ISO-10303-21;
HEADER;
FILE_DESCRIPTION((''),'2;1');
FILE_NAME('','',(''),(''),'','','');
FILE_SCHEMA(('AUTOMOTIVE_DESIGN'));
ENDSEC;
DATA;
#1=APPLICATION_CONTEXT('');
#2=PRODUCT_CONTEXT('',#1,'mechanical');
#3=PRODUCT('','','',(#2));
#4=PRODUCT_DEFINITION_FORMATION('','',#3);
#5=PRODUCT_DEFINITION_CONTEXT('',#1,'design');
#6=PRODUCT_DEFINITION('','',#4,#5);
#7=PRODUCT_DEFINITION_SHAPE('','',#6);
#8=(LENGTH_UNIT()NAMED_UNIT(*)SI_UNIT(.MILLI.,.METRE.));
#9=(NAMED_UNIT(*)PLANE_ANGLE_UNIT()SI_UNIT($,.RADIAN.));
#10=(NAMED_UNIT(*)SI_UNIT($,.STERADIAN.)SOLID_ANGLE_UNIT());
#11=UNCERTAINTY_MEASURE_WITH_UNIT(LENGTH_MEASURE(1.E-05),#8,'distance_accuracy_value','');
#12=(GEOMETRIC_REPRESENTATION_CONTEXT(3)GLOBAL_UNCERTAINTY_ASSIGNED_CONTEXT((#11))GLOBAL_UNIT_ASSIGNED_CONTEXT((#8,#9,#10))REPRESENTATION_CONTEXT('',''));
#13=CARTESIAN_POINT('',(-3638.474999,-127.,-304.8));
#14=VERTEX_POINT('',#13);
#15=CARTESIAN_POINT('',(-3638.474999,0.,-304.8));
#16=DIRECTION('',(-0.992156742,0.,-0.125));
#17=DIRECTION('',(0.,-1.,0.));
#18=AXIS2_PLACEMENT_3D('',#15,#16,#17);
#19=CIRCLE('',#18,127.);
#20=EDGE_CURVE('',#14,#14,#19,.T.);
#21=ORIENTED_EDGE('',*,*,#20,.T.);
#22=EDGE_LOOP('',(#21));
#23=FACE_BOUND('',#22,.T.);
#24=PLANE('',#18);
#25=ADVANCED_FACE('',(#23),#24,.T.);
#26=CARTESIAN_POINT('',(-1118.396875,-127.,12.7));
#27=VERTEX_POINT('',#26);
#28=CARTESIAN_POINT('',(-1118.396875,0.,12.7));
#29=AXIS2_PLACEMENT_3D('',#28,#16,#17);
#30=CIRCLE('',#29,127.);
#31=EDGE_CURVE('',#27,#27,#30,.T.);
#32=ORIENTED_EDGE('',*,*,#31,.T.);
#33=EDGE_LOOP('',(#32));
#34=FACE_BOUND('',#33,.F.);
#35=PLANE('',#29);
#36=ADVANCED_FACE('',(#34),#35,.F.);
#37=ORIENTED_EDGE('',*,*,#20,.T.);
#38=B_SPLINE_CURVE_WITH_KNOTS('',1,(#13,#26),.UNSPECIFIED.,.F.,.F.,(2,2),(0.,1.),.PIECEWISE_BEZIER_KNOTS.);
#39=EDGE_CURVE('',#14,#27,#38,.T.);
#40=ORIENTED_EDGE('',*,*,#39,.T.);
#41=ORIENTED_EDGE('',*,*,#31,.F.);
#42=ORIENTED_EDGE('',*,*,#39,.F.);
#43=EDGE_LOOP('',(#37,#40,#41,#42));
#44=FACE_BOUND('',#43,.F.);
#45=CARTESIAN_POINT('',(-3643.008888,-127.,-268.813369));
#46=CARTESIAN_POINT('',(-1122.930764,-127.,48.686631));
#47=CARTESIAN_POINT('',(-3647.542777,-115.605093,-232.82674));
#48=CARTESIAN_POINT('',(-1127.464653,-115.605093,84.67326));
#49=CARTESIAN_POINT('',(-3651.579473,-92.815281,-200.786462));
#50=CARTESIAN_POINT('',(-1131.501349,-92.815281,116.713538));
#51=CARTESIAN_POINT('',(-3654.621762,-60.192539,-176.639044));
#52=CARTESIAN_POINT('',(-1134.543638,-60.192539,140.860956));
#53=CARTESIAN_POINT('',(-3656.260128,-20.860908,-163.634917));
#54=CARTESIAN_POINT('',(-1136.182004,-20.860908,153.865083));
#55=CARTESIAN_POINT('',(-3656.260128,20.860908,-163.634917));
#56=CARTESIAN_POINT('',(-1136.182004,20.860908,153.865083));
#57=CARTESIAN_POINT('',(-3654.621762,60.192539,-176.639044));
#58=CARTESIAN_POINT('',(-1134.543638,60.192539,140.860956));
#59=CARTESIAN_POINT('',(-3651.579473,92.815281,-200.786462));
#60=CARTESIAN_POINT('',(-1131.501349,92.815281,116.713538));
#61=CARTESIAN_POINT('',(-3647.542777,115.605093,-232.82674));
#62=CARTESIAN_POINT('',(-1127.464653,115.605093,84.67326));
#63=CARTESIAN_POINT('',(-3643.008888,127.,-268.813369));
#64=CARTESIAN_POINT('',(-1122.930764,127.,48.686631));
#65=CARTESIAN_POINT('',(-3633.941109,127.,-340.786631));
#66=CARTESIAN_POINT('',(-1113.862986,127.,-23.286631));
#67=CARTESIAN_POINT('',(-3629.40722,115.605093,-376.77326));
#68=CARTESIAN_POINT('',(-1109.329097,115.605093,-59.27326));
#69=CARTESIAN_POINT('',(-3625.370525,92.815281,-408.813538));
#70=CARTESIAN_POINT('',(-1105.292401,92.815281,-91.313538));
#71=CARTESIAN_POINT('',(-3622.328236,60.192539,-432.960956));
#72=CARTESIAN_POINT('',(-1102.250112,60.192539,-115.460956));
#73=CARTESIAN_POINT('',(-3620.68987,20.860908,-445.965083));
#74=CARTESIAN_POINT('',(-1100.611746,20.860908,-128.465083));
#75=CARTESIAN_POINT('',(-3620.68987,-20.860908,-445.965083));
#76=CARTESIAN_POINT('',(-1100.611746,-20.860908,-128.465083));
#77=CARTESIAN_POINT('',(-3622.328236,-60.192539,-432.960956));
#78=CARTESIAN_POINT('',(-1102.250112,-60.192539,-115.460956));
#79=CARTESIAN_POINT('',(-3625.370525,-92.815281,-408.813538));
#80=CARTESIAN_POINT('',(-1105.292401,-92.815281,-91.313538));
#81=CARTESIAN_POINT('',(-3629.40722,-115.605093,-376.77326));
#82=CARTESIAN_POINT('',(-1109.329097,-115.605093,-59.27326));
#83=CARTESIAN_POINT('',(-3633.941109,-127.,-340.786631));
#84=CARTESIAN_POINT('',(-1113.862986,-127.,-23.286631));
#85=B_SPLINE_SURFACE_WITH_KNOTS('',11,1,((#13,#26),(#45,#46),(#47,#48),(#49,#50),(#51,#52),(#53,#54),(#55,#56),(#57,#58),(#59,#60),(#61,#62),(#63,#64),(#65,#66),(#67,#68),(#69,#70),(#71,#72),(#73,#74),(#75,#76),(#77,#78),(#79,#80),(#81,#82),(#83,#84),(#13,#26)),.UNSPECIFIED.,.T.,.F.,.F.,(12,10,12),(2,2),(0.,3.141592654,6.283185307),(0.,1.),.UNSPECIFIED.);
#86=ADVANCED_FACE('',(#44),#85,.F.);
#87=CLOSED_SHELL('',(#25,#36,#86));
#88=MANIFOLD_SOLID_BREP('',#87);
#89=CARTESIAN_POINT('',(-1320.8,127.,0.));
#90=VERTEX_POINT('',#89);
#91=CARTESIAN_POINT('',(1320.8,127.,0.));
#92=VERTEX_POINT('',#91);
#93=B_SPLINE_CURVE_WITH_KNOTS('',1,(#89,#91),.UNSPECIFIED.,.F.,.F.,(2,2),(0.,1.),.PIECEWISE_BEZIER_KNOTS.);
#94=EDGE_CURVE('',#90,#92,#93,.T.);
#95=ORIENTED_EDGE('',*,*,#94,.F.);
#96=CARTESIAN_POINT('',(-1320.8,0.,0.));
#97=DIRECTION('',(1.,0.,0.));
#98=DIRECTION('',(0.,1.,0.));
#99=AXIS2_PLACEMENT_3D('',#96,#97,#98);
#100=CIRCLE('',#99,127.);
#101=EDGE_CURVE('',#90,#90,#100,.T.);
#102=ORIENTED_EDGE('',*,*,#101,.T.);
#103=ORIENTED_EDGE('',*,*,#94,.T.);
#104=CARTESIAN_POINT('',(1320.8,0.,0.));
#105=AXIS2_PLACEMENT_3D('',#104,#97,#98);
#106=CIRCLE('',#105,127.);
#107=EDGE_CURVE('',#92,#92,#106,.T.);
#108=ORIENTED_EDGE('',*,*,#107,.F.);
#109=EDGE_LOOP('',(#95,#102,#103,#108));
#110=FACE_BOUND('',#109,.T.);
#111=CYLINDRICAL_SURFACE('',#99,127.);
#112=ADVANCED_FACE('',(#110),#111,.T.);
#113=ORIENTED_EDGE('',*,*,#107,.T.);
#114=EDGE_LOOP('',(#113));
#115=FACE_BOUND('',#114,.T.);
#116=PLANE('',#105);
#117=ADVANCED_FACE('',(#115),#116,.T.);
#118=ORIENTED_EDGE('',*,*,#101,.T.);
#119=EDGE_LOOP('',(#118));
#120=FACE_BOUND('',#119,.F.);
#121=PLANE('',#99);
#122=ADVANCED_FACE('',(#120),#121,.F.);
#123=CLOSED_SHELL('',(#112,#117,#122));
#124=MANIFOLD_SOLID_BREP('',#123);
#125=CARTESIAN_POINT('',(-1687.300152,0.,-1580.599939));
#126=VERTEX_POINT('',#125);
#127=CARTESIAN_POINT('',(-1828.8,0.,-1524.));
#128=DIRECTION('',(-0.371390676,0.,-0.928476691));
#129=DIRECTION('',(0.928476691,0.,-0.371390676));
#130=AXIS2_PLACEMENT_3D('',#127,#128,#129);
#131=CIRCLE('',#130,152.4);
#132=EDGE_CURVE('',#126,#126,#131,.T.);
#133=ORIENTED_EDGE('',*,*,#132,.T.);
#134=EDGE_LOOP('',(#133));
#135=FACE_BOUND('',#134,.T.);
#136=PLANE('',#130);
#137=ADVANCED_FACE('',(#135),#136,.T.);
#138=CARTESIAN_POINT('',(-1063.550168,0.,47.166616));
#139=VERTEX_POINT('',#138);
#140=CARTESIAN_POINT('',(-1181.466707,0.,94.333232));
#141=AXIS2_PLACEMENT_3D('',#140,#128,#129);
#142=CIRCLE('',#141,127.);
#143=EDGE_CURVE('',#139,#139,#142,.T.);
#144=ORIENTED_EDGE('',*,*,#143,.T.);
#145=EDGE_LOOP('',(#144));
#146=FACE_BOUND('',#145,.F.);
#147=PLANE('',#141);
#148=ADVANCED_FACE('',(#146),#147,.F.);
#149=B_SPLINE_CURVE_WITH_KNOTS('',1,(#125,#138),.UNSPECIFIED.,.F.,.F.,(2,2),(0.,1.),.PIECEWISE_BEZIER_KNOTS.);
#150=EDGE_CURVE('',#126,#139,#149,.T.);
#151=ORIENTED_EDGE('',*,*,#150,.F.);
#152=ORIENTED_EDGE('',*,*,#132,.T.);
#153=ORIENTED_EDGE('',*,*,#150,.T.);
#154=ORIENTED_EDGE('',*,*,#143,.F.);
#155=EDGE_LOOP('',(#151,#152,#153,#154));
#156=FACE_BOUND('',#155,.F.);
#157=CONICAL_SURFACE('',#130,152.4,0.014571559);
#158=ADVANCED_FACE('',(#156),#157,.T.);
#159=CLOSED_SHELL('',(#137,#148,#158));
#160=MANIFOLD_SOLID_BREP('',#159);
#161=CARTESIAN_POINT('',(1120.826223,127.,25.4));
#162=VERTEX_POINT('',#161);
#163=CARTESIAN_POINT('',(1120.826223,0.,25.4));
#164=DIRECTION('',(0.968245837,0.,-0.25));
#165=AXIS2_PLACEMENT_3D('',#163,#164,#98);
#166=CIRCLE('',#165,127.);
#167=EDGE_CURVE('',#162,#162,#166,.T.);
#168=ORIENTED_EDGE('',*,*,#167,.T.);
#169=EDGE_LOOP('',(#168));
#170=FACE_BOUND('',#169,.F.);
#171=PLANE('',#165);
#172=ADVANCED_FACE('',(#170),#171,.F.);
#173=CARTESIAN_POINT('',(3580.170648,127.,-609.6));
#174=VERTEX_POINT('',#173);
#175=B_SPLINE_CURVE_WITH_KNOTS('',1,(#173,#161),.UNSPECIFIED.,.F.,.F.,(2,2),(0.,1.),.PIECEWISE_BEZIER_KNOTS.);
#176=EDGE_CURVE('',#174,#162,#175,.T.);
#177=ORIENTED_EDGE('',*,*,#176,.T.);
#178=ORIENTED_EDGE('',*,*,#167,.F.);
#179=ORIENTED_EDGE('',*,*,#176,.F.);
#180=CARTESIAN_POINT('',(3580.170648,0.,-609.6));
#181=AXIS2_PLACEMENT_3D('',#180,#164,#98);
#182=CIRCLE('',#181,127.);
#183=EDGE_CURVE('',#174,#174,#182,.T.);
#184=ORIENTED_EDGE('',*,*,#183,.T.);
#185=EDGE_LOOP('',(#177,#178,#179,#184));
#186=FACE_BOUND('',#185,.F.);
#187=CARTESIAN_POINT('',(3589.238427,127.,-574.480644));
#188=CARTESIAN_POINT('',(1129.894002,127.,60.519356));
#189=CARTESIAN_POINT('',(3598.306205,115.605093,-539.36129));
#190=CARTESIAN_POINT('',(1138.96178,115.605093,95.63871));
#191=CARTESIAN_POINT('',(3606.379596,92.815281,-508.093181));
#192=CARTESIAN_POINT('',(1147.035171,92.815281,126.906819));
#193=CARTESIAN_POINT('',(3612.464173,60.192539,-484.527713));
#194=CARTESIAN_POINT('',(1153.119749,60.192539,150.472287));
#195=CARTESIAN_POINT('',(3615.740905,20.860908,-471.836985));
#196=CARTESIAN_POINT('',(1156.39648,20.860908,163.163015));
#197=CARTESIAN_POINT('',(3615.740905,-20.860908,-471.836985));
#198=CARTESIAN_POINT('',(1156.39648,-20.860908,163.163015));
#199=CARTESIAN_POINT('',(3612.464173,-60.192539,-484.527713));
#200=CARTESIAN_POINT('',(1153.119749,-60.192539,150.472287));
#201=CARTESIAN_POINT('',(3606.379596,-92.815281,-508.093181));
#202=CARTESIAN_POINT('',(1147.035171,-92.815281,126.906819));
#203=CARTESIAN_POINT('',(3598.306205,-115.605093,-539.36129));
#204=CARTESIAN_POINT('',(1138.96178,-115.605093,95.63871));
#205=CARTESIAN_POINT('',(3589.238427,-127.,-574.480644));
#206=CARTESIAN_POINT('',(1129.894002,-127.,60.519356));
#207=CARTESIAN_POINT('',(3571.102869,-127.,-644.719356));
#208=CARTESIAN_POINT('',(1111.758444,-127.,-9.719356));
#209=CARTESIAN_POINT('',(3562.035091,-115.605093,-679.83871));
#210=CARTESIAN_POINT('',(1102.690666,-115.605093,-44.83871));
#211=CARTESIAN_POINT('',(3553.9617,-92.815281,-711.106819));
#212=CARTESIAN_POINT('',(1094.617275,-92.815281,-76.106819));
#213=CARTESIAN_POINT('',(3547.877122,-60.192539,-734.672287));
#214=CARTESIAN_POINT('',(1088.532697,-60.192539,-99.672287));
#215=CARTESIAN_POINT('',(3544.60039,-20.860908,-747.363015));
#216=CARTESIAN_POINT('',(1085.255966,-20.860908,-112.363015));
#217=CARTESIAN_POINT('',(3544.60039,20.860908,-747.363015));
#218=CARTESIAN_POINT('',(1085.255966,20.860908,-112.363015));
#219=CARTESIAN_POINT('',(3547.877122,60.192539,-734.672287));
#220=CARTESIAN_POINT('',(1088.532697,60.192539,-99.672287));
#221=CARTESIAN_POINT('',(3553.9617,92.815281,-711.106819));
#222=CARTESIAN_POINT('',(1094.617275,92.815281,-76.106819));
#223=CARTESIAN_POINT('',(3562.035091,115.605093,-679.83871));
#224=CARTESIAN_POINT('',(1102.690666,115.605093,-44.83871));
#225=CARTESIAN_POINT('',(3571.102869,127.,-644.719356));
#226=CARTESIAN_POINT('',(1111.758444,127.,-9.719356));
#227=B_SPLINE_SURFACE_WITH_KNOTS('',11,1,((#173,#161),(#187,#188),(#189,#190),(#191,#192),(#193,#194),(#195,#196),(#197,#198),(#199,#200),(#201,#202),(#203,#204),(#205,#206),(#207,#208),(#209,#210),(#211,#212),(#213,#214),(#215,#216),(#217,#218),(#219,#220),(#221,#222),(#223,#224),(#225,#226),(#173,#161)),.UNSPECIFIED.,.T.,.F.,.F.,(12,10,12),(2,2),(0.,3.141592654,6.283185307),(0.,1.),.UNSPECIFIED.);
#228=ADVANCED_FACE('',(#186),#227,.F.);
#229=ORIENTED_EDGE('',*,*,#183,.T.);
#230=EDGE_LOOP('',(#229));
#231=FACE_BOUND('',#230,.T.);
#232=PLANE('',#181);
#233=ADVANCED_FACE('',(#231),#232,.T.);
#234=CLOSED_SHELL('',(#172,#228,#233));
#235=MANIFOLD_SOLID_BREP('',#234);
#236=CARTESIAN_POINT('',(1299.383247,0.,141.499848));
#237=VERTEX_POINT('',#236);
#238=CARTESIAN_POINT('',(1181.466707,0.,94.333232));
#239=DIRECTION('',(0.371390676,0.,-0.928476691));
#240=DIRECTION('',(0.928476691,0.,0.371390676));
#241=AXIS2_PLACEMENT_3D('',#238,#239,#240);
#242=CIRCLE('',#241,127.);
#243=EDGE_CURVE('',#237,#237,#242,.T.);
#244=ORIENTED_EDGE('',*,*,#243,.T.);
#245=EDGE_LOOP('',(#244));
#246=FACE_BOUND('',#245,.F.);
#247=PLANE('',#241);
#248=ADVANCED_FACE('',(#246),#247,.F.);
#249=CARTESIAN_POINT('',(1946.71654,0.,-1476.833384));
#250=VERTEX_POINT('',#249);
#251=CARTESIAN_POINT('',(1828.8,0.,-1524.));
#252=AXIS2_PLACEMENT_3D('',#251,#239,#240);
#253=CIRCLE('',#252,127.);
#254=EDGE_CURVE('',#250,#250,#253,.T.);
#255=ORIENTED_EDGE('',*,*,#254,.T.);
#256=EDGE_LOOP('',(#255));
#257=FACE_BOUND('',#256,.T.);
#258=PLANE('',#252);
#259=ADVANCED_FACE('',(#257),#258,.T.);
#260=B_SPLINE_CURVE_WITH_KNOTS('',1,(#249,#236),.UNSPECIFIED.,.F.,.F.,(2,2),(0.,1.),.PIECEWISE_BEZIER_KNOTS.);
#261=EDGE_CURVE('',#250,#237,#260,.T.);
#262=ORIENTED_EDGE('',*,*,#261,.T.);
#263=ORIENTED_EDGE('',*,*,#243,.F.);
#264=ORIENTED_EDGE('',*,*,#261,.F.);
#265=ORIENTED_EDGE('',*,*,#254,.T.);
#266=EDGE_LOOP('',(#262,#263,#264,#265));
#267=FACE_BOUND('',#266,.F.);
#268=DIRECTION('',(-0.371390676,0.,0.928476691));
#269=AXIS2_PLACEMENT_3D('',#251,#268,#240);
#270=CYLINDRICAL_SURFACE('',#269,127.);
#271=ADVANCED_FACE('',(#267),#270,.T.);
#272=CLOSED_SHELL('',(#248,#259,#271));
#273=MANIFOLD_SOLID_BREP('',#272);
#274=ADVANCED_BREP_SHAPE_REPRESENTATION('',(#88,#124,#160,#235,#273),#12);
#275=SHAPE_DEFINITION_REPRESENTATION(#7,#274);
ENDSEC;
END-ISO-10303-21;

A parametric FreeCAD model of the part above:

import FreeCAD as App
import Part
import Sketcher

V = App.Vector
Q = App.Units.Quantity

doc = App.newDocument("Part")
params = doc.addObject("Spreadsheet::Sheet", "Params")
for row, (alias, value) in enumerate([
    ("sketch1_diameter", "10 in"),
    ("sketch2_diameter", "10 in"),
    ("sketch3_diameter", "12 in"),
    ("sketch4_diameter", "10 in"),
    ("sketch5_diameter", "10 in"),
    ("sketch6_diameter", "10 in"),
    ("sketch7_diameter", "10 in"),
    ("sketch8_diameter", "10 in"),
    ("sketch9_diameter", "10 in"),
    ("sketch10_diameter", "10 in"),
], start=1):
    params.set(f"A{row}", alias)
    params.set(f"B{row}", "=" + value)
    params.setAlias(f"B{row}", alias)

body = doc.addObject("PartDesign::Body", "Body")

# Sketch on an angled plane
sketch1 = body.newObject("Sketcher::SketchObject", "Sketch")
sketch1.Placement = App.Placement(V(-3619.424999, 0, -456.004687), App.Rotation(V(0, -1, 0), V(-0.125, 0, 0.992156742), V(-0.992156742, 0, -0.125), "ZXY"))
sketch1.addGeometry(Part.Circle(V(0, 152, 0), V(0, 0, 1), 127), False)
sketch1.addConstraint(Sketcher.Constraint("PointOnObject", 0, 3, -2))
sketch1.addConstraint(Sketcher.Constraint("Diameter", 0, Q("10 in")))
sketch1.addConstraint(Sketcher.Constraint("DistanceY", -1, 1, 0, 3, Q("6 in")))
sketch1.setExpression("Constraints[1]", "Params.sketch1_diameter")

# Sketch on an angled plane
sketch2 = body.newObject("Sketcher::SketchObject", "Sketch001")
sketch2.Placement = App.Placement(V(-1099.346875, 0, -138.504687), App.Rotation(V(0, -1, 0), V(-0.125, 0, 0.992156742), V(-0.992156742, 0, -0.125), "ZXY"))
sketch2.addGeometry(Part.Circle(V(0, 152, 0), V(0, 0, 1), 127), False)
sketch2.addConstraint(Sketcher.Constraint("PointOnObject", 0, 3, -2))
sketch2.addConstraint(Sketcher.Constraint("Diameter", 0, Q("10 in")))
sketch2.addConstraint(Sketcher.Constraint("DistanceY", -1, 1, 0, 3, Q("6 in")))
sketch2.setExpression("Constraints[1]", "Params.sketch2_diameter")

additiveloft = body.newObject("PartDesign::AdditiveLoft", "AdditiveLoft")
additiveloft.Profile = sketch1
additiveloft.Sections = [sketch2]
body2 = doc.addObject("PartDesign::Body", "Body001")

# Sketch on an angled plane
sketch3 = body2.newObject("Sketcher::SketchObject", "Sketch002")
sketch3.Placement = App.Placement(V(-777.765517, 0, -1944.413793), App.Rotation(V(0.928476691, 0, -0.371390676), V(0, -1, 0), V(-0.371390676, 0, -0.928476691), "ZXY"))
sketch3.addGeometry(Part.Circle(V(-1131.998781, 0, 0), V(0, 0, 1), 152.4), False)
sketch3.addConstraint(Sketcher.Constraint("PointOnObject", 0, 3, -1))
sketch3.addConstraint(Sketcher.Constraint("Diameter", 0, Q("12 in")))
sketch3.addConstraint(Sketcher.Constraint("DistanceX", 0, 3, -1, 1, 1131.998781))
sketch3.setExpression("Constraints[1]", "Params.sketch3_diameter")

# Sketch on an angled plane
sketch4 = body2.newObject("Sketcher::SketchObject", "Sketch003")
sketch4.Placement = App.Placement(V(-130.432225, 0, -326.080561), App.Rotation(V(0.928476691, 0, -0.371390676), V(0, -1, 0), V(-0.371390676, 0, -0.928476691), "ZXY"))
sketch4.addGeometry(Part.Circle(V(-1131.998781, 0, 0), V(0, 0, 1), 127), False)
sketch4.addConstraint(Sketcher.Constraint("PointOnObject", 0, 3, -1))
sketch4.addConstraint(Sketcher.Constraint("Diameter", 0, Q("10 in")))
sketch4.addConstraint(Sketcher.Constraint("DistanceX", 0, 3, -1, 1, 1131.998781))
sketch4.setExpression("Constraints[1]", "Params.sketch4_diameter")

additiveloft2 = body2.newObject("PartDesign::AdditiveLoft", "AdditiveLoft001")
additiveloft2.Profile = sketch3
additiveloft2.Sections = [sketch4]
body3 = doc.addObject("PartDesign::Body", "Body002")

# Sketch on YZ plane
sketch5 = body3.newObject("Sketcher::SketchObject", "Sketch004")
sketch5.AttachmentSupport = (doc.getObject("YZ_Plane002"), [""])
sketch5.MapMode = "FlatFace"
sketch5.AttachmentOffset = App.Placement(V(0, 0, -52 * 25.4), App.Rotation())
sketch5.addGeometry(Part.Circle(V(0, 0, 0), V(0, 0, 1), 127), False)
sketch5.addConstraint(Sketcher.Constraint("Coincident", 0, 3, -1, 1))
sketch5.addConstraint(Sketcher.Constraint("Diameter", 0, Q("10 in")))
sketch5.setExpression("Constraints[1]", "Params.sketch5_diameter")

# Sketch on YZ plane
sketch6 = body3.newObject("Sketcher::SketchObject", "Sketch005")
sketch6.AttachmentSupport = (doc.getObject("YZ_Plane002"), [""])
sketch6.MapMode = "FlatFace"
sketch6.AttachmentOffset = App.Placement(V(0, 0, 52 * 25.4), App.Rotation())
sketch6.addGeometry(Part.Circle(V(0, 0, 0), V(0, 0, 1), 127), False)
sketch6.addConstraint(Sketcher.Constraint("Coincident", 0, 3, -1, 1))
sketch6.addConstraint(Sketcher.Constraint("Diameter", 0, Q("10 in")))
sketch6.setExpression("Constraints[1]", "Params.sketch6_diameter")

additiveloft3 = body3.newObject("PartDesign::AdditiveLoft", "AdditiveLoft002")
additiveloft3.Profile = sketch5
additiveloft3.Sections = [sketch6]
body4 = doc.addObject("PartDesign::Body", "Body003")

# Sketch on an angled plane
sketch7 = body4.newObject("Sketcher::SketchObject", "Sketch006")
sketch7.Placement = App.Placement(V(3503.970648, 0, -904.721331), App.Rotation(V(0, 1, 0), V(0.25, 0, 0.968245837), V(0.968245837, 0, -0.25), "ZXY"))
sketch7.addGeometry(Part.Circle(V(0, 305, 0), V(0, 0, 1), 127), False)
sketch7.addConstraint(Sketcher.Constraint("PointOnObject", 0, 3, -2))
sketch7.addConstraint(Sketcher.Constraint("Diameter", 0, Q("10 in")))
sketch7.addConstraint(Sketcher.Constraint("DistanceY", -1, 1, 0, 3, Q("12 in")))
sketch7.setExpression("Constraints[1]", "Params.sketch7_diameter")

# Sketch on an angled plane
sketch8 = body4.newObject("Sketcher::SketchObject", "Sketch007")
sketch8.Placement = App.Placement(V(1044.626223, 0, -269.721331), App.Rotation(V(0, 1, 0), V(0.25, 0, 0.968245837), V(0.968245837, 0, -0.25), "ZXY"))
sketch8.addGeometry(Part.Circle(V(0, 305, 0), V(0, 0, 1), 127), False)
sketch8.addConstraint(Sketcher.Constraint("PointOnObject", 0, 3, -2))
sketch8.addConstraint(Sketcher.Constraint("Diameter", 0, Q("10 in")))
sketch8.addConstraint(Sketcher.Constraint("DistanceY", -1, 1, 0, 3, Q("12 in")))
sketch8.setExpression("Constraints[1]", "Params.sketch8_diameter")

additiveloft4 = body4.newObject("PartDesign::AdditiveLoft", "AdditiveLoft003")
additiveloft4.Profile = sketch7
additiveloft4.Sections = [sketch8]
body5 = doc.addObject("PartDesign::Body", "Body004")

# Sketch on an angled plane
sketch9 = body5.newObject("Sketcher::SketchObject", "Sketch008")
sketch9.Placement = App.Placement(V(777.765517, 0, -1944.413793), App.Rotation(V(0.928476691, 0, 0.371390676), V(0, -1, 0), V(0.371390676, 0, -0.928476691), "ZXY"))
sketch9.addGeometry(Part.Circle(V(1131.998781, 0, 0), V(0, 0, 1), 127), False)
sketch9.addConstraint(Sketcher.Constraint("PointOnObject", 0, 3, -1))
sketch9.addConstraint(Sketcher.Constraint("Diameter", 0, Q("10 in")))
sketch9.addConstraint(Sketcher.Constraint("DistanceX", -1, 1, 0, 3, 1131.998781))
sketch9.setExpression("Constraints[1]", "Params.sketch9_diameter")

# Sketch on an angled plane
sketch10 = body5.newObject("Sketcher::SketchObject", "Sketch009")
sketch10.Placement = App.Placement(V(130.432225, 0, -326.080561), App.Rotation(V(0.928476691, 0, 0.371390676), V(0, -1, 0), V(0.371390676, 0, -0.928476691), "ZXY"))
sketch10.addGeometry(Part.Circle(V(1131.998781, 0, 0), V(0, 0, 1), 127), False)
sketch10.addConstraint(Sketcher.Constraint("PointOnObject", 0, 3, -1))
sketch10.addConstraint(Sketcher.Constraint("Diameter", 0, Q("10 in")))
sketch10.addConstraint(Sketcher.Constraint("DistanceX", -1, 1, 0, 3, 1131.998781))
sketch10.setExpression("Constraints[1]", "Params.sketch10_diameter")

additiveloft5 = body5.newObject("PartDesign::AdditiveLoft", "AdditiveLoft004")
additiveloft5.Profile = sketch9
additiveloft5.Sections = [sketch10]

doc.recompute()
